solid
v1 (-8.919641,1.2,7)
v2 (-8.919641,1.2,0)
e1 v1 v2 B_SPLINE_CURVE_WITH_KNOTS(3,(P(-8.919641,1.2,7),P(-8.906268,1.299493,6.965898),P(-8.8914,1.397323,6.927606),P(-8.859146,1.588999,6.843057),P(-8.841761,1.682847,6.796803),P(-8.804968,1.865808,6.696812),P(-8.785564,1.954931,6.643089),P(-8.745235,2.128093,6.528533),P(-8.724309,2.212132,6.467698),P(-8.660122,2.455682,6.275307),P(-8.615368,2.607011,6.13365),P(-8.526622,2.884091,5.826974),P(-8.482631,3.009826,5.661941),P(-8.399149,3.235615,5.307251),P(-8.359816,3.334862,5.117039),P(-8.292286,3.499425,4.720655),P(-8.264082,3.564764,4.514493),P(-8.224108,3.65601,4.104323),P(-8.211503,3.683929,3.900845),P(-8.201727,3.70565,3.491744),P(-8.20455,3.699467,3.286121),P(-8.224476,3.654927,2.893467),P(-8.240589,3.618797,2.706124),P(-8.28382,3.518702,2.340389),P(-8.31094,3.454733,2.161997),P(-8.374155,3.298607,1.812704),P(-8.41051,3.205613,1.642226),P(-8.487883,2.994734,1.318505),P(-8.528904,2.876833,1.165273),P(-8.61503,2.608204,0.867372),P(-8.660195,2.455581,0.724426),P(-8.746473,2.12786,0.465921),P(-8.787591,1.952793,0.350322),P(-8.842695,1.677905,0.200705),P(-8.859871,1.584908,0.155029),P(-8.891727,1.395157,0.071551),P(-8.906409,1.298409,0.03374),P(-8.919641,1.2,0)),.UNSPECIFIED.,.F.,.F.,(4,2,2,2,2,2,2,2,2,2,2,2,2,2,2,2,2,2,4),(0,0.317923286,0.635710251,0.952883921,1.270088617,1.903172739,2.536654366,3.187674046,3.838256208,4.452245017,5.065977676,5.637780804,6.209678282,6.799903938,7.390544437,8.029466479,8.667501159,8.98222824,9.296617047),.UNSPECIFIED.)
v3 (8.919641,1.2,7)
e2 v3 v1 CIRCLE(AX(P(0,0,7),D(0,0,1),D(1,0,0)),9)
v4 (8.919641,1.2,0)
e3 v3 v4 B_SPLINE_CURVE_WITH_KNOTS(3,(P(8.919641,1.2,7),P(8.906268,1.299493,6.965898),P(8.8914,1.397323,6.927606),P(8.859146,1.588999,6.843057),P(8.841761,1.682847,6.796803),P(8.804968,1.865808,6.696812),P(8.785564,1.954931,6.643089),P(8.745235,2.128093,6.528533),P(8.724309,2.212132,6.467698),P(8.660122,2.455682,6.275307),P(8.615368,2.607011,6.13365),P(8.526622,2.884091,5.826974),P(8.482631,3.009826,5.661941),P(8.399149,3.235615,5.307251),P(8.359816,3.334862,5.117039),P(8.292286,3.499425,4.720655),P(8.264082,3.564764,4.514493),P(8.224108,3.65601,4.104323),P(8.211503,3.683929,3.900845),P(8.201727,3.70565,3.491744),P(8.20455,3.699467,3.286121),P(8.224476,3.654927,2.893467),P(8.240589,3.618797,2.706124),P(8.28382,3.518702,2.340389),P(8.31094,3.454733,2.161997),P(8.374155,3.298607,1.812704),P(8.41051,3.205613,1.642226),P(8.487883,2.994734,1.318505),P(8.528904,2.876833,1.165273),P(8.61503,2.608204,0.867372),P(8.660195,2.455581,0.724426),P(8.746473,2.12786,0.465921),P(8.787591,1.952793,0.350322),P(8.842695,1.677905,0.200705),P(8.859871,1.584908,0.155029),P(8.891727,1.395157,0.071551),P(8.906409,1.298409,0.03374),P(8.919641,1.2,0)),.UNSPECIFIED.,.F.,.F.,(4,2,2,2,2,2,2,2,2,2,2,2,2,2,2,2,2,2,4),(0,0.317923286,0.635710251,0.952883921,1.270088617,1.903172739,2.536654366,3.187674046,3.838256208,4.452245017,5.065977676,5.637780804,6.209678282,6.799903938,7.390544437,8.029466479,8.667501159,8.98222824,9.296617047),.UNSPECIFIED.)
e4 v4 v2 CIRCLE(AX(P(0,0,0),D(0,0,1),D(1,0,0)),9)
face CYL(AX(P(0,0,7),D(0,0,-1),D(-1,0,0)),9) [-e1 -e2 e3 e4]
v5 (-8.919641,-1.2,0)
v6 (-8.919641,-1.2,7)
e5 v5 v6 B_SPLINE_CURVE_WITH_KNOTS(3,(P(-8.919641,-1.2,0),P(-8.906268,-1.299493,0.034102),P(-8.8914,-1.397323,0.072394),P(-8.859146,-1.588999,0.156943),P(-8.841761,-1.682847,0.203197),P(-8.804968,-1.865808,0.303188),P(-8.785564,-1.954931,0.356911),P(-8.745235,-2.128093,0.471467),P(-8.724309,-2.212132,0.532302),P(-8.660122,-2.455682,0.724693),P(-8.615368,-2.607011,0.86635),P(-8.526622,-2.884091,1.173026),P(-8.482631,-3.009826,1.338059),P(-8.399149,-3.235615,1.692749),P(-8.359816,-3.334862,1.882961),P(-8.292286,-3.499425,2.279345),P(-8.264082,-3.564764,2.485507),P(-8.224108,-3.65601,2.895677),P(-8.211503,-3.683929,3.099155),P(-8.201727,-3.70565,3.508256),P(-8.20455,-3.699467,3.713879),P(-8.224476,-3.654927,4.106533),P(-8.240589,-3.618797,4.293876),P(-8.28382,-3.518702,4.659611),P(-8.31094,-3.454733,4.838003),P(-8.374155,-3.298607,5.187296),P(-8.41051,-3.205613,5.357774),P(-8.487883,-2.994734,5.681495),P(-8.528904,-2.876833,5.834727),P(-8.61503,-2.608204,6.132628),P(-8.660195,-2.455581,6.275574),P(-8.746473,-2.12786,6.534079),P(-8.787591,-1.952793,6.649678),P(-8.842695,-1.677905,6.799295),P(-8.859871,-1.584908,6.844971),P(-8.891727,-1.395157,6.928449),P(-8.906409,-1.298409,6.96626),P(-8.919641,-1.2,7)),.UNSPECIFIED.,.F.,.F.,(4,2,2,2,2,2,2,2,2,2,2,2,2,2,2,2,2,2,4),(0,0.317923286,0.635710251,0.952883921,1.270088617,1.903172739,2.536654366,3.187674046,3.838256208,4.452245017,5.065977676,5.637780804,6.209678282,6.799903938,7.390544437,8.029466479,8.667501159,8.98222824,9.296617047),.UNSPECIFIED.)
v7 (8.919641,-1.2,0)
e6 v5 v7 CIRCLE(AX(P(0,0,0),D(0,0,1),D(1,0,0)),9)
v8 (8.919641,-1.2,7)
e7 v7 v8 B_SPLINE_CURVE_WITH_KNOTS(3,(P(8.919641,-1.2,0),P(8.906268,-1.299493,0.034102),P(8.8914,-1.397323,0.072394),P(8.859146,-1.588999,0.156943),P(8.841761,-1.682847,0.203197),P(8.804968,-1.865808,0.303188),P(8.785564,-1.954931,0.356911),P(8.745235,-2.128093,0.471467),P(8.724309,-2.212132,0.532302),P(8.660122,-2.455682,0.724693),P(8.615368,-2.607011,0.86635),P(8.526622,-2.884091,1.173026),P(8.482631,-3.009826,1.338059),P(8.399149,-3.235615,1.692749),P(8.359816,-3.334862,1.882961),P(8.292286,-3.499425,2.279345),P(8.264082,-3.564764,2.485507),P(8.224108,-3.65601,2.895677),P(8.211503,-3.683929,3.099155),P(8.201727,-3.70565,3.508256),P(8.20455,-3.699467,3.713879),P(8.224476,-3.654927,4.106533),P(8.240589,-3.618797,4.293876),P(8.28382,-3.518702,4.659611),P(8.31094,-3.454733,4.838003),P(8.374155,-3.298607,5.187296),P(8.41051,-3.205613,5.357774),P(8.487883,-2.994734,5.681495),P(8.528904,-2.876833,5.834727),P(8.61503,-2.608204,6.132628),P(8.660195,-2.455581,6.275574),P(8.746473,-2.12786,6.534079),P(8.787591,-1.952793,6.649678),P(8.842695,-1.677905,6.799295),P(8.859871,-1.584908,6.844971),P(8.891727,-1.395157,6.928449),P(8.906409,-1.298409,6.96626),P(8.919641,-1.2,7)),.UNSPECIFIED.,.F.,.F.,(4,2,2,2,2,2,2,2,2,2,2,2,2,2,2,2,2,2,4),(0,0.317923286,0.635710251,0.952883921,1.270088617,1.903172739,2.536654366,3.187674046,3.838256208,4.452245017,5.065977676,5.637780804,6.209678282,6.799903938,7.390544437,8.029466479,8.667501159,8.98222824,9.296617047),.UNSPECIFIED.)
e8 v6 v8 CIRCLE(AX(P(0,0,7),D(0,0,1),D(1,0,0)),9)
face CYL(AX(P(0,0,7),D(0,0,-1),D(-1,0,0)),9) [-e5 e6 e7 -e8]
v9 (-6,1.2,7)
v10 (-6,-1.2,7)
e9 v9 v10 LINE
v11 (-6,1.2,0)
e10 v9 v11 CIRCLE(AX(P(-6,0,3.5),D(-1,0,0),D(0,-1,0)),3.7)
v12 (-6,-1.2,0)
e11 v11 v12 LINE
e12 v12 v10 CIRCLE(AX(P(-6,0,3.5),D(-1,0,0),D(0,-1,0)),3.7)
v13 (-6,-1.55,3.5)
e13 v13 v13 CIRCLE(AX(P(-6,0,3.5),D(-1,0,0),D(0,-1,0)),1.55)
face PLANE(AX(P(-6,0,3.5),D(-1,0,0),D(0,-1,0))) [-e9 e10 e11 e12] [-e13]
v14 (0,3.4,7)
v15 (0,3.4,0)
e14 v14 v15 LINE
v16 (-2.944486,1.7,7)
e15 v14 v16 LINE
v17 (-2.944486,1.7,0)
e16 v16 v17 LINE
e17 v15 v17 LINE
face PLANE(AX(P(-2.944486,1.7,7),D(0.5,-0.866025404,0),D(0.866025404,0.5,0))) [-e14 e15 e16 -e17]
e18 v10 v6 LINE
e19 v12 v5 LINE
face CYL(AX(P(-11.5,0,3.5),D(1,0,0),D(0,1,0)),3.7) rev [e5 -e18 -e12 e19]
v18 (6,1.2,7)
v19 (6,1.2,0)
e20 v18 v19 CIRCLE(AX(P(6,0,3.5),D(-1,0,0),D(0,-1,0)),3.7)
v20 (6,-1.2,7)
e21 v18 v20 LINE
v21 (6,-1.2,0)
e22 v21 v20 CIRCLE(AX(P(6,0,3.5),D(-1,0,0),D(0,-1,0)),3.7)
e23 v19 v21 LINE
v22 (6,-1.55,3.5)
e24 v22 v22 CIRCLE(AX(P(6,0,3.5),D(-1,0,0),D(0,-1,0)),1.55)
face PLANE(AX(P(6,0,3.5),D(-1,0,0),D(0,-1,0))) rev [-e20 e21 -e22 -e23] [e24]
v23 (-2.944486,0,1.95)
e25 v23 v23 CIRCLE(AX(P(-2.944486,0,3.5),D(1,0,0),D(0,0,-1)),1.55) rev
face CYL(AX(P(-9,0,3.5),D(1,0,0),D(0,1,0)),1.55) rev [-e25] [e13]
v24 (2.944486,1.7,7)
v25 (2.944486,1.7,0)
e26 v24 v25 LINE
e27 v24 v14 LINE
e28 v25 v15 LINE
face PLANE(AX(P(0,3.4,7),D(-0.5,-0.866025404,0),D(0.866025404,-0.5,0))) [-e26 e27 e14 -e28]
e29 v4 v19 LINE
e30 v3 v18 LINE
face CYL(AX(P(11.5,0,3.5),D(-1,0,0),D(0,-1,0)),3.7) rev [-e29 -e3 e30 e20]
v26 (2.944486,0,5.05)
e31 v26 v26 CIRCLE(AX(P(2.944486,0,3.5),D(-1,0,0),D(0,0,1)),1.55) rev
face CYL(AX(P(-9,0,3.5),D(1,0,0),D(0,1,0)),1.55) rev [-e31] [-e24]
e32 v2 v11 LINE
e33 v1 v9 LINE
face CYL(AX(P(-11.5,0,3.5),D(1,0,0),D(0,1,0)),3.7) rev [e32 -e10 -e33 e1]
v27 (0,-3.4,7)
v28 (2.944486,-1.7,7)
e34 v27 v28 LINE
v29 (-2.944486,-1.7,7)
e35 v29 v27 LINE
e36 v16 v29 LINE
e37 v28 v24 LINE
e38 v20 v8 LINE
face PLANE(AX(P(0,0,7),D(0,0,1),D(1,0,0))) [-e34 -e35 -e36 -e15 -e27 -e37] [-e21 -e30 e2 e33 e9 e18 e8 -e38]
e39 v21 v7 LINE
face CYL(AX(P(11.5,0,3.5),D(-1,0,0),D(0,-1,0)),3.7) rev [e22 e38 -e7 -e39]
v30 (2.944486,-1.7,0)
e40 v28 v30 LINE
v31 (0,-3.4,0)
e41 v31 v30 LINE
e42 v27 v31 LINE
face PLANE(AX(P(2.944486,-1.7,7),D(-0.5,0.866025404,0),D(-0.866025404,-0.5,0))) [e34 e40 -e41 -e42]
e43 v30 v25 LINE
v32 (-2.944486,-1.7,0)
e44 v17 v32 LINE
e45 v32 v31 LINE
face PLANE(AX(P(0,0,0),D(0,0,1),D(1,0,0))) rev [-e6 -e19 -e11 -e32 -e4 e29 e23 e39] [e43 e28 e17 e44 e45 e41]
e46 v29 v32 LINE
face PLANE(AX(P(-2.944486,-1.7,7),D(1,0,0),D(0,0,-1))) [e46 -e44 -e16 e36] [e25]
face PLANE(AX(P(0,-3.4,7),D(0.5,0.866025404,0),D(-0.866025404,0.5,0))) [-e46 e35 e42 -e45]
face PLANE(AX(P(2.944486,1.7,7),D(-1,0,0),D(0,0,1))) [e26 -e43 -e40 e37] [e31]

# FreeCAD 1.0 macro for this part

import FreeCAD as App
import Part
import Sketcher
Q = App.Units.Quantity

doc = App.newDocument("Part")
params = doc.addObject("Spreadsheet::Sheet", "Params")
for row, (alias, value) in enumerate([
    ("sketch1_diameter", "18 mm"),
    ("sketch1_height", "3.4 mm"),
    ("sketch1_length", "3.4 mm"),
    ("pad1_length", "7 mm"),
    ("sketch2_diameter", "3.1 mm"),
    ("sketch3_diameter", "7.4 mm"),
    ("pocket2_length", "5.5 mm"),
    ("sketch4_diameter", "7.4 mm"),
    ("pocket3_length", "5.5 mm"),
], start=1):
    params.set(f"A{row}", alias)
    params.set(f"B{row}", "=" + value)
    params.setAlias(f"B{row}", alias)

body = doc.addObject("PartDesign::Body", "Body")

# Sketch on XY plane
sketch1 = body.newObject("Sketcher::SketchObject", "Sketch")
sketch1.AttachmentSupport = (doc.getObject("XY_Plane"), [""])
sketch1.MapMode = "FlatFace"
sketch1.addGeometry(Part.Circle(App.Vector(0, 0, 0), App.Vector(0, 0, 1), 9), False)
sketch1.addGeometry(Part.LineSegment(App.Vector(-2.9, 1.7, 0), App.Vector(0, 3.4, 0)), False)
sketch1.addGeometry(Part.LineSegment(App.Vector(0, 3.4, 0), App.Vector(2.9, 1.7, 0)), False)
sketch1.addGeometry(Part.LineSegment(App.Vector(2.9, 1.7, 0), App.Vector(2.9, -1.7, 0)), False)
sketch1.addGeometry(Part.LineSegment(App.Vector(2.9, -1.7, 0), App.Vector(0, -3.4, 0)), False)
sketch1.addGeometry(Part.LineSegment(App.Vector(0, -3.4, 0), App.Vector(-2.9, -1.7, 0)), False)
sketch1.addGeometry(Part.LineSegment(App.Vector(-2.9, -1.7, 0), App.Vector(-2.9, 1.7, 0)), False)
sketch1.addConstraint(Sketcher.Constraint("Coincident", 1, 2, 2, 1))
sketch1.addConstraint(Sketcher.Constraint("Coincident", 2, 2, 3, 1))
sketch1.addConstraint(Sketcher.Constraint("Coincident", 3, 2, 4, 1))
sketch1.addConstraint(Sketcher.Constraint("Coincident", 4, 2, 5, 1))
sketch1.addConstraint(Sketcher.Constraint("Coincident", 5, 2, 6, 1))
sketch1.addConstraint(Sketcher.Constraint("Coincident", 6, 2, 1, 1))
sketch1.addConstraint(Sketcher.Constraint("Vertical", 3))
sketch1.addConstraint(Sketcher.Constraint("Vertical", 6))
sketch1.addConstraint(Sketcher.Constraint("Coincident", 0, 3, -1, 1))
sketch1.addConstraint(Sketcher.Constraint("Symmetric", 1, 2, 4, 2, -1, 1))
sketch1.addConstraint(Sketcher.Constraint("Symmetric", 2, 2, 5, 2, -1, 1))
sketch1.addConstraint(Sketcher.Constraint("PointOnObject", 1, 2, -2))
sketch1.addConstraint(Sketcher.Constraint("Parallel", 1, 4))
sketch1.addConstraint(Sketcher.Constraint("Horizontal", 3, 2, 5, 2))
sketch1.addConstraint(Sketcher.Constraint("Diameter", 0, 18.0))
sketch1.addConstraint(Sketcher.Constraint("Angle", 1, Q("30 deg")))
sketch1.addConstraint(Sketcher.Constraint("DistanceY", 3, 2, 3, 1, 3.4))
sketch1.addConstraint(Sketcher.Constraint("Distance", 1, 3.4))
sketch1.setExpression("Constraints[14]", "Params.sketch1_diameter")
sketch1.setExpression("Constraints[16]", "Params.sketch1_height")
sketch1.setExpression("Constraints[17]", "Params.sketch1_length")
pad1 = body.newObject("PartDesign::Pad", "Pad")
pad1.Profile = sketch1
pad1.setExpression("Length", "Params.pad1_length")

# Sketch on YZ plane
sketch2 = body.newObject("Sketcher::SketchObject", "Sketch001")
sketch2.AttachmentSupport = (doc.getObject("YZ_Plane"), [""])
sketch2.MapMode = "FlatFace"
sketch2.addGeometry(Part.Circle(App.Vector(0, 3.5, 0), App.Vector(0, 0, 1), 1.6), False)
sketch2.addConstraint(Sketcher.Constraint("PointOnObject", 0, 3, -2))
sketch2.addConstraint(Sketcher.Constraint("Diameter", 0, 3.1))
sketch2.addConstraint(Sketcher.Constraint("DistanceY", -1, 1, 0, 3, 3.5))
sketch2.setExpression("Constraints[1]", "Params.sketch2_diameter")
pocket1 = body.newObject("PartDesign::Pocket", "Pocket")
pocket1.Profile = sketch2
pocket1.Type = "ThroughAll"
pocket1.Midplane = True

# Sketch on YZ plane
sketch3 = body.newObject("Sketcher::SketchObject", "Sketch002")
sketch3.AttachmentSupport = (doc.getObject("YZ_Plane"), [""])
sketch3.MapMode = "FlatFace"
sketch3.AttachmentOffset = App.Placement(App.Vector(0, 0, -6), App.Rotation())
sketch3.addGeometry(Part.Circle(App.Vector(0, 3.5, 0), App.Vector(0, 0, 1), 3.7), False)
sketch3.addConstraint(Sketcher.Constraint("PointOnObject", 0, 3, -2))
sketch3.addConstraint(Sketcher.Constraint("Diameter", 0, 7.4))
sketch3.addConstraint(Sketcher.Constraint("DistanceY", -1, 1, 0, 3, 3.5))
sketch3.setExpression("Constraints[1]", "Params.sketch3_diameter")
pocket2 = body.newObject("PartDesign::Pocket", "Pocket001")
pocket2.Profile = sketch3
pocket2.setExpression("Length", "Params.pocket2_length")

# Sketch on YZ plane
sketch4 = body.newObject("Sketcher::SketchObject", "Sketch003")
sketch4.AttachmentSupport = (doc.getObject("YZ_Plane"), [""])
sketch4.MapMode = "FlatFace"
sketch4.AttachmentOffset = App.Placement(App.Vector(0, 0, 11.5), App.Rotation())
sketch4.addGeometry(Part.Circle(App.Vector(0, 3.5, 0), App.Vector(0, 0, 1), 3.7), False)
sketch4.addConstraint(Sketcher.Constraint("PointOnObject", 0, 3, -2))
sketch4.addConstraint(Sketcher.Constraint("Diameter", 0, 7.4))
sketch4.addConstraint(Sketcher.Constraint("DistanceY", -1, 1, 0, 3, 3.5))
sketch4.setExpression("Constraints[1]", "Params.sketch4_diameter")
pocket3 = body.newObject("PartDesign::Pocket", "Pocket002")
pocket3.Profile = sketch4
pocket3.setExpression("Length", "Params.pocket3_length")

doc.recompute()
